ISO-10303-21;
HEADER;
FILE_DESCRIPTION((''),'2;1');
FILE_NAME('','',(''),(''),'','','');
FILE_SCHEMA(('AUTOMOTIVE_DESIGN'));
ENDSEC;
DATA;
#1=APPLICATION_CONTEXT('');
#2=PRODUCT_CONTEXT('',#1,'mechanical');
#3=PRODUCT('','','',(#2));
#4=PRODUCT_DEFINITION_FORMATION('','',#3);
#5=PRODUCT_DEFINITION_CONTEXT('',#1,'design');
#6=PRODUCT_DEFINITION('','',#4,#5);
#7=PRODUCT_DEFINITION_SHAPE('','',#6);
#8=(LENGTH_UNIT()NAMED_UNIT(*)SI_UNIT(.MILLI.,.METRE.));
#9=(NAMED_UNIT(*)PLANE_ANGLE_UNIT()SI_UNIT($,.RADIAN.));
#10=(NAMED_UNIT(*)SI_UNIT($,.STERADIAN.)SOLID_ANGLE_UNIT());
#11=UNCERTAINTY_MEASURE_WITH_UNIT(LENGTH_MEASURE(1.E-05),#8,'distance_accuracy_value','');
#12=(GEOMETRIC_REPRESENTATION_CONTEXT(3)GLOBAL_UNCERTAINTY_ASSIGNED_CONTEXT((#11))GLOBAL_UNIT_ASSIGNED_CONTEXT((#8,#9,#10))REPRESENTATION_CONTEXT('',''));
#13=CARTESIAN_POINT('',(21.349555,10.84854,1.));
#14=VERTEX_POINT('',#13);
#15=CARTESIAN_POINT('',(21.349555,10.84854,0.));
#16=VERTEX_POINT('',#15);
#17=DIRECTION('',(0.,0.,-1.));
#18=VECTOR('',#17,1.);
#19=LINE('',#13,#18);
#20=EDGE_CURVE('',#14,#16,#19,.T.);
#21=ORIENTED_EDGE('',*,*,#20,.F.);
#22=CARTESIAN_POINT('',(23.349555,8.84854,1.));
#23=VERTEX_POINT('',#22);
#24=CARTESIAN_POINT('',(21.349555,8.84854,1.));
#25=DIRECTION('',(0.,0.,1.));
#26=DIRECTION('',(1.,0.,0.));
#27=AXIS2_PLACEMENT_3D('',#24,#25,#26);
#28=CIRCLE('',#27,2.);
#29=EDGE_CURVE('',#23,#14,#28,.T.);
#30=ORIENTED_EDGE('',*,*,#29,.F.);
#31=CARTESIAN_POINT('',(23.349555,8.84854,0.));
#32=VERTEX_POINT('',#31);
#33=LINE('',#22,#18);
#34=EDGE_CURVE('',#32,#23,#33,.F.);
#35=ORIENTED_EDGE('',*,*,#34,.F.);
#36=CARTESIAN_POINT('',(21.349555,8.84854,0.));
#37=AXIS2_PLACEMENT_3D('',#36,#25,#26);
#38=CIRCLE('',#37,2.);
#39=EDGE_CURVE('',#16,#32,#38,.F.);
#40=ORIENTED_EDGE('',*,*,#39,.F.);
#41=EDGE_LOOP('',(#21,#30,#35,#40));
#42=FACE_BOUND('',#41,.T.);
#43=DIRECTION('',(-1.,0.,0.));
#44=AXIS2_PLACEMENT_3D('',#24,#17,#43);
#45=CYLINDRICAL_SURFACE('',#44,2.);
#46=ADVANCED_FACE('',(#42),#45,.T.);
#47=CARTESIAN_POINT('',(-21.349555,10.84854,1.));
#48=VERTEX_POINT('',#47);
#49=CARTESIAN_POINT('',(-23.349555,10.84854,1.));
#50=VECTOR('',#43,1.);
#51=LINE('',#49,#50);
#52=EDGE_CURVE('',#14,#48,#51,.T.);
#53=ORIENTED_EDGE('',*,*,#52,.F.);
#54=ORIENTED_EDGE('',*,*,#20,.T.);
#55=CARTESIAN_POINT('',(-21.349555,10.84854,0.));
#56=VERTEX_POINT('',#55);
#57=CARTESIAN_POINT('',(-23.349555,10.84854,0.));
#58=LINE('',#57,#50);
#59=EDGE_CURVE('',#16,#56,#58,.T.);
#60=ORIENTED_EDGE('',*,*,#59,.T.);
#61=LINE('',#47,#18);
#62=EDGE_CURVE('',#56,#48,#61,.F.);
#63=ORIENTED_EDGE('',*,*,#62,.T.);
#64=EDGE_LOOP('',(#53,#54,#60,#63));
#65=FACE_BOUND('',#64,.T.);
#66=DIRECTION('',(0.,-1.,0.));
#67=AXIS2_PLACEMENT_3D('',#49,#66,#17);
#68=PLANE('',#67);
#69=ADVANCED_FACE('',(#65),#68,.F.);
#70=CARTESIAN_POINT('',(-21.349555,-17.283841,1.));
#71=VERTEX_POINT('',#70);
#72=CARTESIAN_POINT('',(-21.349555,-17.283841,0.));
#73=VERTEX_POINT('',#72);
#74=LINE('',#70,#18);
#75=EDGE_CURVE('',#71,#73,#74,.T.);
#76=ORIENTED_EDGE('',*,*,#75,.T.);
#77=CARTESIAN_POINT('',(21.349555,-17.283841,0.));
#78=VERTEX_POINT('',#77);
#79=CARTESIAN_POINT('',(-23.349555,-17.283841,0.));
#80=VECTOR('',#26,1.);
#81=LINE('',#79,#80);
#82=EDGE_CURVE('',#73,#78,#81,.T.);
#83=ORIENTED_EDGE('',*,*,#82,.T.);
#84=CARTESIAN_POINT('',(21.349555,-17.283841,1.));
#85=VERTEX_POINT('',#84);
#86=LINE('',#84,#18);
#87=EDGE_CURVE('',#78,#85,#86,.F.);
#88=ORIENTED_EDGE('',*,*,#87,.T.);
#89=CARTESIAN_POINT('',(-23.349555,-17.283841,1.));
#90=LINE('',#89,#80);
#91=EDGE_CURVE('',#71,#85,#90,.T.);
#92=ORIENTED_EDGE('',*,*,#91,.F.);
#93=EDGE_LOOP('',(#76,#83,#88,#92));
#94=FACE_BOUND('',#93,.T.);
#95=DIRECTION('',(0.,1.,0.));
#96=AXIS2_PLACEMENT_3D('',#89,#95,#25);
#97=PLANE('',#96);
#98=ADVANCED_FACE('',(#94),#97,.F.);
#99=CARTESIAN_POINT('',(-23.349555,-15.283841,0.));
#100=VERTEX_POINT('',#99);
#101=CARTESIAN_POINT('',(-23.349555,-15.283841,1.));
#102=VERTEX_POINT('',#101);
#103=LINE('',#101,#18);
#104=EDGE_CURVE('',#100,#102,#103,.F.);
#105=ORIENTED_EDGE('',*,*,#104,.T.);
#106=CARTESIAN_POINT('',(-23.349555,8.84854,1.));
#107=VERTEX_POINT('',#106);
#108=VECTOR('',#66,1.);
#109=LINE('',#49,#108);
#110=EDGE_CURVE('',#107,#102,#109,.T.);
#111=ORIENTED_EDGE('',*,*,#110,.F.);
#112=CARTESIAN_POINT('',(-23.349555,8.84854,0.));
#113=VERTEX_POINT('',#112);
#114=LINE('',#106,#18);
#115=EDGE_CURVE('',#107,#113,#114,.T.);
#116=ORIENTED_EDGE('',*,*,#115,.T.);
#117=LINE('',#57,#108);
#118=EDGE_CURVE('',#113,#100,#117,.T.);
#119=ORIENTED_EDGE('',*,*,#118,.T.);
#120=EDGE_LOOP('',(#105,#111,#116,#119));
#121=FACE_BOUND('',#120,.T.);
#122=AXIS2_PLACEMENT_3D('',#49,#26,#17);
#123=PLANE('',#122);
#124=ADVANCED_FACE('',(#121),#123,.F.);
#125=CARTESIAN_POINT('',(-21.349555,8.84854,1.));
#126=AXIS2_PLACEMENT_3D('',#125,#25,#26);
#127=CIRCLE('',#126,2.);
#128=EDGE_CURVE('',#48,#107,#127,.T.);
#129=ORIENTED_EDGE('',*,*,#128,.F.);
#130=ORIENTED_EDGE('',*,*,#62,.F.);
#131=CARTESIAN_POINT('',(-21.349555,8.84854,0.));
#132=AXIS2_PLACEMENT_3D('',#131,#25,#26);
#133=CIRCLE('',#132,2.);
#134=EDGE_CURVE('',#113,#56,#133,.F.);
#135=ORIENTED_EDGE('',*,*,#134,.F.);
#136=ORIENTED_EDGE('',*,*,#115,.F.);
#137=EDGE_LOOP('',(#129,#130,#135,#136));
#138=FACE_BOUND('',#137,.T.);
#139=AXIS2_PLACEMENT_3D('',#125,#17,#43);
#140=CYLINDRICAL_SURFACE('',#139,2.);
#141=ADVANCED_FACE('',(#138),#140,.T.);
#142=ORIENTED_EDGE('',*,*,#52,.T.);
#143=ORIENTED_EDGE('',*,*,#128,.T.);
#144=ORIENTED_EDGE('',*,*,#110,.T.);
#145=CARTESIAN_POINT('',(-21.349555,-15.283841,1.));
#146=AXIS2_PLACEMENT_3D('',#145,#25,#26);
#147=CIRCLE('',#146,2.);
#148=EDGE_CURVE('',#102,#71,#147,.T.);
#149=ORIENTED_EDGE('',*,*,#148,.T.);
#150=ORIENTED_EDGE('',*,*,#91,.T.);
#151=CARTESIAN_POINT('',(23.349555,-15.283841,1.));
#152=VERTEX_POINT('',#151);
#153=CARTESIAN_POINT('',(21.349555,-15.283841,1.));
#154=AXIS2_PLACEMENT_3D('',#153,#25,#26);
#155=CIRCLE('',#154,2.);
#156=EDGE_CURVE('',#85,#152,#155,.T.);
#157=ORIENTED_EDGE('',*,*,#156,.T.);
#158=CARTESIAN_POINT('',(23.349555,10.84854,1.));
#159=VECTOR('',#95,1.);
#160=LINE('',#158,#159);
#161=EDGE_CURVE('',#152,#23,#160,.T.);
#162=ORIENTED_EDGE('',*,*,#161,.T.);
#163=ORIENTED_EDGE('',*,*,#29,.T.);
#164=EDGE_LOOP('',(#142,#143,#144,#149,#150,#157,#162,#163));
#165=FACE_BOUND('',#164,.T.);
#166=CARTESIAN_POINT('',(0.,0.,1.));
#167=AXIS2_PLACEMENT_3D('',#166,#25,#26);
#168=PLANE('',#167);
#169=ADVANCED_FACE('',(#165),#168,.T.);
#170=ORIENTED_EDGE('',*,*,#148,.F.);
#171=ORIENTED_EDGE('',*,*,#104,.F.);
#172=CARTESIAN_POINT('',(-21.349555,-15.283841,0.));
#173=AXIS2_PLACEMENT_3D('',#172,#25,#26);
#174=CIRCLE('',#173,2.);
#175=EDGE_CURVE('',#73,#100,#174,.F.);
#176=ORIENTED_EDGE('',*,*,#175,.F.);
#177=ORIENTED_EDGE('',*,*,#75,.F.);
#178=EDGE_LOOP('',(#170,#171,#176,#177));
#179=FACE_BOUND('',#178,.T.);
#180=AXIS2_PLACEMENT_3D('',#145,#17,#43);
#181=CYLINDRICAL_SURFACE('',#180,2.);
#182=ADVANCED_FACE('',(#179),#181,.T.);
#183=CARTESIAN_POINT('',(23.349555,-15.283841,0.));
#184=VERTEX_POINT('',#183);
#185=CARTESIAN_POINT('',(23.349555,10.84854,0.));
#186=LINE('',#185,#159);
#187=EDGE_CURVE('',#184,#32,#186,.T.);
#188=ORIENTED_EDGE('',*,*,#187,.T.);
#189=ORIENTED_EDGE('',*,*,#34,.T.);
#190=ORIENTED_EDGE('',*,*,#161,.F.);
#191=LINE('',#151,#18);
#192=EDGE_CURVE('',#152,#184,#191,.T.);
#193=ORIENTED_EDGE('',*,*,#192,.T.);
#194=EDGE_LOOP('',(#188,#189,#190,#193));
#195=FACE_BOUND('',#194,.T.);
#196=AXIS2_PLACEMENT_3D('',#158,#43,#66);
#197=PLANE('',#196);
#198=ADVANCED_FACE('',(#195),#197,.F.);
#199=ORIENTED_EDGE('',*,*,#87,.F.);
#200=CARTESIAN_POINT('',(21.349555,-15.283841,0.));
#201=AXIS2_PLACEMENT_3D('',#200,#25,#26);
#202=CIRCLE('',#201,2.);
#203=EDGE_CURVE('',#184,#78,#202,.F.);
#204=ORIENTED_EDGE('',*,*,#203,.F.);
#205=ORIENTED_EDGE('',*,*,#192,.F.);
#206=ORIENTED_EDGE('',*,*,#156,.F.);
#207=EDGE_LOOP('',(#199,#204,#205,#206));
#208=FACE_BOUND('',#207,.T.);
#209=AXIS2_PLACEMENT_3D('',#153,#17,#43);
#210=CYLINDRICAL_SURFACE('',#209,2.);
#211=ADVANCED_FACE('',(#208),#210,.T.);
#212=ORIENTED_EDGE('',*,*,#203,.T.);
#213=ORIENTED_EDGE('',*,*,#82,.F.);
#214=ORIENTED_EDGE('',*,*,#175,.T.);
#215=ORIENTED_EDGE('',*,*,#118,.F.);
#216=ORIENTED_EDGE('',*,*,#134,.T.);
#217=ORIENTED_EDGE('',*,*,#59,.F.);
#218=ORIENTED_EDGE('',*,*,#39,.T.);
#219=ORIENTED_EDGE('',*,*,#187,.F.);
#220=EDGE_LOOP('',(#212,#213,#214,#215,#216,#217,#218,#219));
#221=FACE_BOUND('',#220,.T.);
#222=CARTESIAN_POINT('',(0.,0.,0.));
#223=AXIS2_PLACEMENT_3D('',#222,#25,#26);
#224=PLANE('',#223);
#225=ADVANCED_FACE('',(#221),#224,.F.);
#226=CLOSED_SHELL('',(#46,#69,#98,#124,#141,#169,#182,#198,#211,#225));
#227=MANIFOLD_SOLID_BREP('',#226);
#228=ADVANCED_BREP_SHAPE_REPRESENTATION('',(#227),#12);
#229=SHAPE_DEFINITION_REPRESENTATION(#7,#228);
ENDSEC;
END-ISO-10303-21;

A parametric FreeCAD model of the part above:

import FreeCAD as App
import Part
import Sketcher
from FreeCAD import Vector


def edges_at(feature, points):
    """Names of the edges that pass closest to the given points."""
    edges = feature.Shape.Edges
    near = lambda p: min(range(len(edges)), key=lambda i: edges[i].distToShape(Part.Vertex(*p))[0])
    return sorted({f"Edge{near(p) + 1}" for p in points})

doc = App.newDocument("Part")
body = doc.addObject("PartDesign::Body", "Body")

# Sketch on XY plane
sketch1 = doc.addObject("Sketcher::SketchObject", "Sketch")
body.addObject(sketch1)
sketch1.AttachmentSupport = (doc.XY_Plane, [""])
sketch1.MapMode = "FlatFace"
sketch1.addGeometry([
    Part.LineSegment(Vector(-23, 11, 0), Vector(-23, -17, 0)),
    Part.LineSegment(Vector(-23, -17, 0), Vector(23, -17, 0)),
    Part.LineSegment(Vector(23, -17, 0), Vector(23, 11, 0)),
    Part.LineSegment(Vector(23, 11, 0), Vector(-23, 11, 0)),
], False)
sketch1.addConstraint([
    Sketcher.Constraint("Coincident", 0, 2, 1, 1),
    Sketcher.Constraint("Coincident", 1, 2, 2, 1),
    Sketcher.Constraint("Coincident", 2, 2, 3, 1),
    Sketcher.Constraint("Coincident", 3, 2, 0, 1),
    Sketcher.Constraint("Vertical", 0),
    Sketcher.Constraint("Horizontal", 1),
    Sketcher.Constraint("Vertical", 2),
    Sketcher.Constraint("Horizontal", 3),
    Sketcher.Constraint("DistanceX", 1, 1, 1, 2, 46.69911),
    Sketcher.Constraint("DistanceY", 0, 2, 0, 1, 28.132381),
    Sketcher.Constraint("DistanceY", 0, 2, -1, 1, 17.283841),
    Sketcher.Constraint("DistanceX", 0, 2, -1, 1, 23.349555),
])
pad1 = doc.addObject("PartDesign::Pad", "Pad")
body.addObject(pad1)
pad1.Profile = sketch1
pad1.Length = 1
doc.recompute()

fillet = doc.addObject("PartDesign::Fillet", "Fillet")
body.addObject(fillet)
fillet.Base = (pad1, edges_at(pad1, [
    (23.35, -17.284, 0.5),
    (-23.35, -17.284, 0.5),
    (-23.35, 10.849, 0.5),
    (23.35, 10.849, 0.5),
]))
fillet.Radius = 2

doc.recompute()
